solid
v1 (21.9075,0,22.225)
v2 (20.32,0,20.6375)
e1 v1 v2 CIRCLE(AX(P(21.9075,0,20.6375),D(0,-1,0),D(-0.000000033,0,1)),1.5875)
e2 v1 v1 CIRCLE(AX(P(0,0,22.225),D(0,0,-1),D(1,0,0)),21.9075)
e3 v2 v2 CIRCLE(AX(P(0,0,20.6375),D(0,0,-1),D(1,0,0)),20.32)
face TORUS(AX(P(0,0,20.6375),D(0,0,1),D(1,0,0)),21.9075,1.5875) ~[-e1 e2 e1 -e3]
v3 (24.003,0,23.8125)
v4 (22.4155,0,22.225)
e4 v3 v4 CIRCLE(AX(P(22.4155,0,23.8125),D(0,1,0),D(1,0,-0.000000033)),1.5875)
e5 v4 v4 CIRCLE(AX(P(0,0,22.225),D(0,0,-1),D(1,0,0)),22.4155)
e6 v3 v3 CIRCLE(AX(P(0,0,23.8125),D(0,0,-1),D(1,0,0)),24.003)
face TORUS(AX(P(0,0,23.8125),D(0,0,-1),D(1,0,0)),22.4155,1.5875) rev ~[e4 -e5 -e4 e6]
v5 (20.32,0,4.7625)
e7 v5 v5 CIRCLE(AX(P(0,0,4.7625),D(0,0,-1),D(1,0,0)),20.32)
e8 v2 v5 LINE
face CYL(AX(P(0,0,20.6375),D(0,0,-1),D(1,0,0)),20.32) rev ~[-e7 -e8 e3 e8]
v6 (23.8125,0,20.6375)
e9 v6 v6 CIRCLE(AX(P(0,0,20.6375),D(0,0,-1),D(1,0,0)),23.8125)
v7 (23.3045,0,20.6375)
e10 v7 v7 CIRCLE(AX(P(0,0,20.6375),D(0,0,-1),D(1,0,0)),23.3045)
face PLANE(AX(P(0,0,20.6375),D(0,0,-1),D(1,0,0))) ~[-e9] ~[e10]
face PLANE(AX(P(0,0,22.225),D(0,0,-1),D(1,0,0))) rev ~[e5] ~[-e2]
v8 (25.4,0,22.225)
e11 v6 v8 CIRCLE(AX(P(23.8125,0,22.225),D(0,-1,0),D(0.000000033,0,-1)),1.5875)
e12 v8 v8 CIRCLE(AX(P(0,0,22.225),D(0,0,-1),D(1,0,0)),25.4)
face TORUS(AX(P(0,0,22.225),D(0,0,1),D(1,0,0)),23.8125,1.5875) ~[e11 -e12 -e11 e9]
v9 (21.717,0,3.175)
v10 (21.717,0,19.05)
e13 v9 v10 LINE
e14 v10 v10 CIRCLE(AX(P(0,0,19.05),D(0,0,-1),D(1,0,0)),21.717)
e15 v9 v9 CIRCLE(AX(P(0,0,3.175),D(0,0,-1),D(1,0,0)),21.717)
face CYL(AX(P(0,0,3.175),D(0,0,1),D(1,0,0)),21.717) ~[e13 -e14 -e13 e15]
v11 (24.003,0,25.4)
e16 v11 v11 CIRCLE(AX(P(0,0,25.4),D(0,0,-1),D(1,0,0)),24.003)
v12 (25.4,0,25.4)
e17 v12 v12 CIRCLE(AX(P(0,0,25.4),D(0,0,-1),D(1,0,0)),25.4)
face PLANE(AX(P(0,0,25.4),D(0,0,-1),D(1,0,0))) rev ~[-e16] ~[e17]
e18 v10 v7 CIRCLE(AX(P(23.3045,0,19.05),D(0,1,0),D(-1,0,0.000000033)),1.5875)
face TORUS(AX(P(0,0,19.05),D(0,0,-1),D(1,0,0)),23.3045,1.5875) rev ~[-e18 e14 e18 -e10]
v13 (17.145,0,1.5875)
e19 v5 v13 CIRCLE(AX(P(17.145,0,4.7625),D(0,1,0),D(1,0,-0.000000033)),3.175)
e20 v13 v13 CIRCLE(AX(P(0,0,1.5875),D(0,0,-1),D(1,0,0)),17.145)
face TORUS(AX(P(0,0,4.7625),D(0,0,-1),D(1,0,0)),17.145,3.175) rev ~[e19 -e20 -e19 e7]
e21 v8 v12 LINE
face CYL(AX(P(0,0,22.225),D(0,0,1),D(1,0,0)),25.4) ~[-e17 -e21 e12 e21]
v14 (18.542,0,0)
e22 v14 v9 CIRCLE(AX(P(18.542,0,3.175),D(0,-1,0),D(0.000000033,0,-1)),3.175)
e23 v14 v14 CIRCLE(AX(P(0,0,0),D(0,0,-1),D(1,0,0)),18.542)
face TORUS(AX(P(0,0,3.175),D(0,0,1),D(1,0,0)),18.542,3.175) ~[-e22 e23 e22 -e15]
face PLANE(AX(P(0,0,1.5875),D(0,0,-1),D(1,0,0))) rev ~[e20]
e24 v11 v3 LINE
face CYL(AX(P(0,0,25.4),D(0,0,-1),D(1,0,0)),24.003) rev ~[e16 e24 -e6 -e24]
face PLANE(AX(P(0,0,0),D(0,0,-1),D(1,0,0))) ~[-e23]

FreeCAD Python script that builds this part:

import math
import FreeCAD as App
import Part
import Sketcher
from FreeCAD import Vector
Q = App.Units.Quantity

doc = App.newDocument("Part")
body = doc.addObject("PartDesign::Body", "Body")

# Sketch on XZ plane
sketch1 = doc.addObject("Sketcher::SketchObject", "Sketch")
body.addObject(sketch1)
sketch1.AttachmentSupport = (doc.XZ_Plane, [""])
sketch1.MapMode = "FlatFace"
sketch1.addGeometry(Part.LineSegment(Vector(0, 1.6, 0), Vector(0, 0, 0)), False)
sketch1.addGeometry(Part.LineSegment(Vector(0, 0, 0), Vector(18.5, 0, 0)), False)
sketch1.addGeometry(Part.ArcOfCircle(Part.Circle(Vector(18.5, 3.2, 0), Vector(0, 0, 1), 3.2), math.radians(-90), math.radians(0)), False)
sketch1.addGeometry(Part.LineSegment(Vector(21.7, 3.2, 0), Vector(21.7, 19.1, 0)), False)
sketch1.addGeometry(Part.ArcOfCircle(Part.Circle(Vector(23.3, 19, 0), Vector(0, 0, 1), 1.6), math.radians(90), math.radians(180)), False)
sketch1.addGeometry(Part.LineSegment(Vector(23.3, 20.6, 0), Vector(23.8, 20.6, 0)), False)
sketch1.addGeometry(Part.ArcOfCircle(Part.Circle(Vector(23.8, 22.2, 0), Vector(0, 0, 1), 1.6), math.radians(-90), math.radians(0)), False)
sketch1.addGeometry(Part.LineSegment(Vector(25.4, 22.2, 0), Vector(25.4, 25.4, 0)), False)
sketch1.addGeometry(Part.LineSegment(Vector(25.4, 25.4, 0), Vector(24, 25.4, 0)), False)
sketch1.addGeometry(Part.LineSegment(Vector(24, 25.4, 0), Vector(24, 23.8, 0)), False)
sketch1.addGeometry(Part.ArcOfCircle(Part.Circle(Vector(22.4, 23.8, 0), Vector(0, 0, 1), 1.6), math.radians(-90), math.radians(0)), False)
sketch1.addGeometry(Part.LineSegment(Vector(22.4, 22.2, 0), Vector(21.9, 22.2, 0)), False)
sketch1.addGeometry(Part.ArcOfCircle(Part.Circle(Vector(21.9, 20.6, 0), Vector(0, 0, 1), 1.6), math.radians(90), math.radians(180)), False)
sketch1.addGeometry(Part.LineSegment(Vector(20.3, 20.6, 0), Vector(20.3, 4.8, 0)), False)
sketch1.addGeometry(Part.ArcOfCircle(Part.Circle(Vector(17.1, 4.8, 0), Vector(0, 0, 1), 3.2), math.radians(-90), math.radians(0)), False)
sketch1.addGeometry(Part.LineSegment(Vector(17.1, 1.6, 0), Vector(0, 1.6, 0)), False)
sketch1.addConstraint(Sketcher.Constraint("Coincident", 0, 2, 1, 1))
sketch1.addConstraint(Sketcher.Constraint("Tangent", 1, 2, 2, 1))
sketch1.addConstraint(Sketcher.Constraint("Tangent", 2, 2, 3, 1))
sketch1.addConstraint(Sketcher.Constraint("Tangent", 3, 2, 4, 2))
sketch1.addConstraint(Sketcher.Constraint("Tangent", 4, 1, 5, 1))
sketch1.addConstraint(Sketcher.Constraint("Tangent", 5, 2, 6, 1))
sketch1.addConstraint(Sketcher.Constraint("Tangent", 6, 2, 7, 1))
sketch1.addConstraint(Sketcher.Constraint("Coincident", 7, 2, 8, 1))
sketch1.addConstraint(Sketcher.Constraint("Coincident", 8, 2, 9, 1))
sketch1.addConstraint(Sketcher.Constraint("Tangent", 9, 2, 10, 2))
sketch1.addConstraint(Sketcher.Constraint("Tangent", 10, 1, 11, 1))
sketch1.addConstraint(Sketcher.Constraint("Tangent", 11, 2, 12, 1))
sketch1.addConstraint(Sketcher.Constraint("Tangent", 12, 2, 13, 1))
sketch1.addConstraint(Sketcher.Constraint("Tangent", 13, 2, 14, 2))
sketch1.addConstraint(Sketcher.Constraint("Tangent", 14, 1, 15, 1))
sketch1.addConstraint(Sketcher.Constraint("Coincident", 15, 2, 0, 1))
sketch1.addConstraint(Sketcher.Constraint("Vertical", 0))
sketch1.addConstraint(Sketcher.Constraint("Horizontal", 1))
sketch1.addConstraint(Sketcher.Constraint("Vertical", 3))
sketch1.addConstraint(Sketcher.Constraint("Horizontal", 5))
sketch1.addConstraint(Sketcher.Constraint("Vertical", 7))
sketch1.addConstraint(Sketcher.Constraint("Horizontal", 8))
sketch1.addConstraint(Sketcher.Constraint("Vertical", 9))
sketch1.addConstraint(Sketcher.Constraint("Horizontal", 11))
sketch1.addConstraint(Sketcher.Constraint("Vertical", 13))
sketch1.addConstraint(Sketcher.Constraint("Horizontal", 15))
sketch1.addConstraint(Sketcher.Constraint("Coincident", 0, 2, -1, 1))
sketch1.addConstraint(Sketcher.Constraint("Equal", 4, 6))
sketch1.addConstraint(Sketcher.Constraint("Equal", 6, 10))
sketch1.addConstraint(Sketcher.Constraint("Equal", 10, 12))
sketch1.addConstraint(Sketcher.Constraint("Equal", 2, 14))
sketch1.addConstraint(Sketcher.Constraint("Horizontal", 12, 3, 4, 1))
sketch1.addConstraint(Sketcher.Constraint("Equal", 5, 11))
sketch1.addConstraint(Sketcher.Constraint("Equal", 0, 9))
sketch1.addConstraint(Sketcher.Constraint("Equal", 3, 13))
sketch1.addConstraint(Sketcher.Constraint("DistanceX", -1, 1, 6, 2, Q("1 in")))
sketch1.addConstraint(Sketcher.Constraint("DistanceY", -1, 1, 7, 2, Q("1 in")))
sketch1.addConstraint(Sketcher.Constraint("Radius", 2, Q("0.125 in")))
sketch1.addConstraint(Sketcher.Constraint("Radius", 4, Q("0.0625 in")))
sketch1.addConstraint(Sketcher.Constraint("DistanceX", 1, 1, 1, 2, Q("0.73 in")))
sketch1.addConstraint(Sketcher.Constraint("DistanceX", -1, 1, 12, 2, Q("0.8 in")))
revolution = doc.addObject("PartDesign::Revolution", "Revolution")
body.addObject(revolution)
revolution.Profile = sketch1
revolution.ReferenceAxis = (sketch1, ["V_Axis"])
revolution.Angle = 360

doc.recompute()
